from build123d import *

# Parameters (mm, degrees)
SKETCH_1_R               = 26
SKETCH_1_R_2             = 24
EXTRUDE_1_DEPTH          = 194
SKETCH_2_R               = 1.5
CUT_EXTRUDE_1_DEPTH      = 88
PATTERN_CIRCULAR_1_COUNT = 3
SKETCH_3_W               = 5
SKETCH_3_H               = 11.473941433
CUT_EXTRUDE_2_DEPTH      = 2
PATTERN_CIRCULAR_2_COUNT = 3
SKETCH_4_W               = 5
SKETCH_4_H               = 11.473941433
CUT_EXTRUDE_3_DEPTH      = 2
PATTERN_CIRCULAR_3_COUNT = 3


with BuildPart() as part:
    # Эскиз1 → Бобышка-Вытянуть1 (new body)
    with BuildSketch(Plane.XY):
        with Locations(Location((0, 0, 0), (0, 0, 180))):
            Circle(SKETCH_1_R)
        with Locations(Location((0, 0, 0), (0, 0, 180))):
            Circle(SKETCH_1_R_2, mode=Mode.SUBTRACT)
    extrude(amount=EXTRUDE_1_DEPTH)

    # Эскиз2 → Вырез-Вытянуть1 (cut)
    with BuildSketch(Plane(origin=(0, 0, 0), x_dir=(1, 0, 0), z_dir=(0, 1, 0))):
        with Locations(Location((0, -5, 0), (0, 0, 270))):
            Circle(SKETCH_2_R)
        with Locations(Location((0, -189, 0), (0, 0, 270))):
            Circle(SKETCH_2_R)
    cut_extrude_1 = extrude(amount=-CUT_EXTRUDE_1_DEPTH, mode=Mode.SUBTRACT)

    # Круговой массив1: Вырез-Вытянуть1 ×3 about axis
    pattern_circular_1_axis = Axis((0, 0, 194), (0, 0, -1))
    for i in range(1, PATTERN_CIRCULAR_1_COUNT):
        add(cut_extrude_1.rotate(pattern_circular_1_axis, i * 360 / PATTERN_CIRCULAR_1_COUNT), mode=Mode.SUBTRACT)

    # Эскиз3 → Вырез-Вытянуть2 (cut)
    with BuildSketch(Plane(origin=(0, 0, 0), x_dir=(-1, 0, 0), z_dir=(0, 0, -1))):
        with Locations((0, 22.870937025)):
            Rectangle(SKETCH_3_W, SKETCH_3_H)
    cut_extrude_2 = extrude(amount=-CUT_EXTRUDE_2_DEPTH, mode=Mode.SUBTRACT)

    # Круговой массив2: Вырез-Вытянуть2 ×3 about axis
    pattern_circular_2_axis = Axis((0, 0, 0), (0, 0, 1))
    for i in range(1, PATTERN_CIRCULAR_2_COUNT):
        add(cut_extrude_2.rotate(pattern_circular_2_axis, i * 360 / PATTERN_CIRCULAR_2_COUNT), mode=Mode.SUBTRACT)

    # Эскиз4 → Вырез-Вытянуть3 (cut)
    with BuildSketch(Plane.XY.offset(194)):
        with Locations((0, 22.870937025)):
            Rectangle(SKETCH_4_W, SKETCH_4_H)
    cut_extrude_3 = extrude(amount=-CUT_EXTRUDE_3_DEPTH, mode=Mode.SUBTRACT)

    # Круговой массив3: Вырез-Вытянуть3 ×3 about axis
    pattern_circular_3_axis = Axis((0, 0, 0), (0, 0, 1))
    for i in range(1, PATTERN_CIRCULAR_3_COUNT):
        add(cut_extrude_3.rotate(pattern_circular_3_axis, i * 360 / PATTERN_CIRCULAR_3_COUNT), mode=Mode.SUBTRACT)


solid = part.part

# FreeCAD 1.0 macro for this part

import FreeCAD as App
import Part
import Sketcher
from FreeCAD import Vector
Q = App.Units.Quantity

doc = App.newDocument("Part")
body = doc.addObject("PartDesign::Body", "Body")

# Sketch on XY plane
sketch1 = body.newObject("Sketcher::SketchObject", "Sketch")
sketch1.AttachmentSupport = (doc.getObject("XY_Plane"), [""])
sketch1.MapMode = "FlatFace"
sketch1.addGeometry(Part.Circle(Vector(0, 0, 0), Vector(0, 0, 1), 26), False)
sketch1.addGeometry(Part.Circle(Vector(0, 0, 0), Vector(0, 0, 1), 24), False)
sketch1.addConstraint(Sketcher.Constraint("Coincident", 0, 3, -1, 1))
sketch1.addConstraint(Sketcher.Constraint("Coincident", 1, 3, -1, 1))
sketch1.addConstraint(Sketcher.Constraint("Diameter", 0, Q("52 mm")))
sketch1.addConstraint(Sketcher.Constraint("Diameter", 1, Q("48 mm")))
pad1 = body.newObject("PartDesign::Pad", "Pad")
pad1.Profile = sketch1
pad1.Length = 194

# Sketch on XZ plane
sketch2 = body.newObject("Sketcher::SketchObject", "Sketch001")
sketch2.AttachmentSupport = (doc.getObject("XZ_Plane"), [""])
sketch2.MapMode = "FlatFace"
sketch2.addGeometry(Part.Circle(Vector(0, 5, 0), Vector(0, 0, 1), 1.5), False)
sketch2.addGeometry(Part.Circle(Vector(0, 189, 0), Vector(0, 0, 1), 1.5), False)
sketch2.addConstraint(Sketcher.Constraint("Equal", 0, 1))
sketch2.addConstraint(Sketcher.Constraint("PointOnObject", 0, 3, -2))
sketch2.addConstraint(Sketcher.Constraint("PointOnObject", 1, 3, -2))
sketch2.addConstraint(Sketcher.Constraint("Diameter", 0, Q("3 mm")))
sketch2.addConstraint(Sketcher.Constraint("DistanceY", -1, 1, 0, 3, Q("5 mm")))
sketch2.addConstraint(Sketcher.Constraint("DistanceY", -1, 1, 1, 3, Q("189 mm")))
pocket1 = body.newObject("PartDesign::Pocket", "Pocket")
pocket1.Profile = sketch2
pocket1.Length = 88
pocket1.Reversed = True
doc.recompute()

polarpattern = body.newObject("PartDesign::PolarPattern", "PolarPattern")
polarpattern.Originals = [pocket1]
polarpattern.Axis = (doc.getObject("Z_Axis"), [""])
polarpattern.Angle = 360
polarpattern.Occurrences = 3
body.Tip = polarpattern

# Sketch on XY plane
sketch3 = body.newObject("Sketcher::SketchObject", "Sketch002")
sketch3.AttachmentSupport = (doc.getObject("XY_Plane"), [""])
sketch3.MapMode = "FlatFace"
sketch3.addGeometry(Part.LineSegment(Vector(2.5, 28.607908, 0), Vector(2.5, 17.133966, 0)), False)
sketch3.addGeometry(Part.LineSegment(Vector(2.5, 17.133966, 0), Vector(-2.5, 17.133966, 0)), False)
sketch3.addGeometry(Part.LineSegment(Vector(-2.5, 17.133966, 0), Vector(-2.5, 28.607908, 0)), False)
sketch3.addGeometry(Part.LineSegment(Vector(-2.5, 28.607908, 0), Vector(2.5, 28.607908, 0)), False)
sketch3.addConstraint(Sketcher.Constraint("Coincident", 0, 2, 1, 1))
sketch3.addConstraint(Sketcher.Constraint("Coincident", 1, 2, 2, 1))
sketch3.addConstraint(Sketcher.Constraint("Coincident", 2, 2, 3, 1))
sketch3.addConstraint(Sketcher.Constraint("Coincident", 3, 2, 0, 1))
sketch3.addConstraint(Sketcher.Constraint("Vertical", 0))
sketch3.addConstraint(Sketcher.Constraint("Horizontal", 1))
sketch3.addConstraint(Sketcher.Constraint("Vertical", 2))
sketch3.addConstraint(Sketcher.Constraint("Horizontal", 3))
sketch3.addConstraint(Sketcher.Constraint("DistanceX", 1, 2, 1, 1, Q("5 mm")))
sketch3.addConstraint(Sketcher.Constraint("DistanceX", -1, 1, 0, 2, Q("2.5 mm")))
sketch3.addConstraint(Sketcher.Constraint("DistanceY", 0, 2, 0, 1, Q("11.473941 mm")))
sketch3.addConstraint(Sketcher.Constraint("DistanceY", -1, 1, 0, 2, Q("17.133966 mm")))
pocket2 = body.newObject("PartDesign::Pocket", "Pocket001")
pocket2.Profile = sketch3
pocket2.Length = 2
pocket2.Reversed = True
doc.recompute()

polarpattern2 = body.newObject("PartDesign::PolarPattern", "PolarPattern001")
polarpattern2.Originals = [pocket2]
polarpattern2.Axis = (doc.getObject("Z_Axis"), [""])
polarpattern2.Angle = 360
polarpattern2.Occurrences = 3
body.Tip = polarpattern2

# Sketch on XY plane
sketch4 = body.newObject("Sketcher::SketchObject", "Sketch003")
sketch4.AttachmentSupport = (doc.getObject("XY_Plane"), [""])
sketch4.MapMode = "FlatFace"
sketch4.AttachmentOffset = App.Placement(Vector(0, 0, 194), App.Rotation())
sketch4.addGeometry(Part.LineSegment(Vector(-2.5, 28.607908, 0), Vector(-2.5, 17.133966, 0)), False)
sketch4.addGeometry(Part.LineSegment(Vector(-2.5, 17.133966, 0), Vector(2.5, 17.133966, 0)), False)
sketch4.addGeometry(Part.LineSegment(Vector(2.5, 17.133966, 0), Vector(2.5, 28.607908, 0)), False)
sketch4.addGeometry(Part.LineSegment(Vector(2.5, 28.607908, 0), Vector(-2.5, 28.607908, 0)), False)
sketch4.addConstraint(Sketcher.Constraint("Coincident", 0, 2, 1, 1))
sketch4.addConstraint(Sketcher.Constraint("Coincident", 1, 2, 2, 1))
sketch4.addConstraint(Sketcher.Constraint("Coincident", 2, 2, 3, 1))
sketch4.addConstraint(Sketcher.Constraint("Coincident", 3, 2, 0, 1))
sketch4.addConstraint(Sketcher.Constraint("Vertical", 0))
sketch4.addConstraint(Sketcher.Constraint("Horizontal", 1))
sketch4.addConstraint(Sketcher.Constraint("Vertical", 2))
sketch4.addConstraint(Sketcher.Constraint("Horizontal", 3))
sketch4.addConstraint(Sketcher.Constraint("DistanceX", 1, 1, 1, 2, Q("5 mm")))
sketch4.addConstraint(Sketcher.Constraint("DistanceX", 0, 2, -1, 1, Q("2.5 mm")))
sketch4.addConstraint(Sketcher.Constraint("DistanceY", 0, 2, 0, 1, Q("11.473941 mm")))
sketch4.addConstraint(Sketcher.Constraint("DistanceY", -1, 1, 0, 2, Q("17.133966 mm")))
pocket3 = body.newObject("PartDesign::Pocket", "Pocket002")
pocket3.Profile = sketch4
pocket3.Length = 2
doc.recompute()

polarpattern3 = body.newObject("PartDesign::PolarPattern", "PolarPattern002")
polarpattern3.Originals = [pocket3]
polarpattern3.Axis = (doc.getObject("Z_Axis"), [""])
polarpattern3.Angle = 360
polarpattern3.Occurrences = 3
body.Tip = polarpattern3

doc.recompute()
